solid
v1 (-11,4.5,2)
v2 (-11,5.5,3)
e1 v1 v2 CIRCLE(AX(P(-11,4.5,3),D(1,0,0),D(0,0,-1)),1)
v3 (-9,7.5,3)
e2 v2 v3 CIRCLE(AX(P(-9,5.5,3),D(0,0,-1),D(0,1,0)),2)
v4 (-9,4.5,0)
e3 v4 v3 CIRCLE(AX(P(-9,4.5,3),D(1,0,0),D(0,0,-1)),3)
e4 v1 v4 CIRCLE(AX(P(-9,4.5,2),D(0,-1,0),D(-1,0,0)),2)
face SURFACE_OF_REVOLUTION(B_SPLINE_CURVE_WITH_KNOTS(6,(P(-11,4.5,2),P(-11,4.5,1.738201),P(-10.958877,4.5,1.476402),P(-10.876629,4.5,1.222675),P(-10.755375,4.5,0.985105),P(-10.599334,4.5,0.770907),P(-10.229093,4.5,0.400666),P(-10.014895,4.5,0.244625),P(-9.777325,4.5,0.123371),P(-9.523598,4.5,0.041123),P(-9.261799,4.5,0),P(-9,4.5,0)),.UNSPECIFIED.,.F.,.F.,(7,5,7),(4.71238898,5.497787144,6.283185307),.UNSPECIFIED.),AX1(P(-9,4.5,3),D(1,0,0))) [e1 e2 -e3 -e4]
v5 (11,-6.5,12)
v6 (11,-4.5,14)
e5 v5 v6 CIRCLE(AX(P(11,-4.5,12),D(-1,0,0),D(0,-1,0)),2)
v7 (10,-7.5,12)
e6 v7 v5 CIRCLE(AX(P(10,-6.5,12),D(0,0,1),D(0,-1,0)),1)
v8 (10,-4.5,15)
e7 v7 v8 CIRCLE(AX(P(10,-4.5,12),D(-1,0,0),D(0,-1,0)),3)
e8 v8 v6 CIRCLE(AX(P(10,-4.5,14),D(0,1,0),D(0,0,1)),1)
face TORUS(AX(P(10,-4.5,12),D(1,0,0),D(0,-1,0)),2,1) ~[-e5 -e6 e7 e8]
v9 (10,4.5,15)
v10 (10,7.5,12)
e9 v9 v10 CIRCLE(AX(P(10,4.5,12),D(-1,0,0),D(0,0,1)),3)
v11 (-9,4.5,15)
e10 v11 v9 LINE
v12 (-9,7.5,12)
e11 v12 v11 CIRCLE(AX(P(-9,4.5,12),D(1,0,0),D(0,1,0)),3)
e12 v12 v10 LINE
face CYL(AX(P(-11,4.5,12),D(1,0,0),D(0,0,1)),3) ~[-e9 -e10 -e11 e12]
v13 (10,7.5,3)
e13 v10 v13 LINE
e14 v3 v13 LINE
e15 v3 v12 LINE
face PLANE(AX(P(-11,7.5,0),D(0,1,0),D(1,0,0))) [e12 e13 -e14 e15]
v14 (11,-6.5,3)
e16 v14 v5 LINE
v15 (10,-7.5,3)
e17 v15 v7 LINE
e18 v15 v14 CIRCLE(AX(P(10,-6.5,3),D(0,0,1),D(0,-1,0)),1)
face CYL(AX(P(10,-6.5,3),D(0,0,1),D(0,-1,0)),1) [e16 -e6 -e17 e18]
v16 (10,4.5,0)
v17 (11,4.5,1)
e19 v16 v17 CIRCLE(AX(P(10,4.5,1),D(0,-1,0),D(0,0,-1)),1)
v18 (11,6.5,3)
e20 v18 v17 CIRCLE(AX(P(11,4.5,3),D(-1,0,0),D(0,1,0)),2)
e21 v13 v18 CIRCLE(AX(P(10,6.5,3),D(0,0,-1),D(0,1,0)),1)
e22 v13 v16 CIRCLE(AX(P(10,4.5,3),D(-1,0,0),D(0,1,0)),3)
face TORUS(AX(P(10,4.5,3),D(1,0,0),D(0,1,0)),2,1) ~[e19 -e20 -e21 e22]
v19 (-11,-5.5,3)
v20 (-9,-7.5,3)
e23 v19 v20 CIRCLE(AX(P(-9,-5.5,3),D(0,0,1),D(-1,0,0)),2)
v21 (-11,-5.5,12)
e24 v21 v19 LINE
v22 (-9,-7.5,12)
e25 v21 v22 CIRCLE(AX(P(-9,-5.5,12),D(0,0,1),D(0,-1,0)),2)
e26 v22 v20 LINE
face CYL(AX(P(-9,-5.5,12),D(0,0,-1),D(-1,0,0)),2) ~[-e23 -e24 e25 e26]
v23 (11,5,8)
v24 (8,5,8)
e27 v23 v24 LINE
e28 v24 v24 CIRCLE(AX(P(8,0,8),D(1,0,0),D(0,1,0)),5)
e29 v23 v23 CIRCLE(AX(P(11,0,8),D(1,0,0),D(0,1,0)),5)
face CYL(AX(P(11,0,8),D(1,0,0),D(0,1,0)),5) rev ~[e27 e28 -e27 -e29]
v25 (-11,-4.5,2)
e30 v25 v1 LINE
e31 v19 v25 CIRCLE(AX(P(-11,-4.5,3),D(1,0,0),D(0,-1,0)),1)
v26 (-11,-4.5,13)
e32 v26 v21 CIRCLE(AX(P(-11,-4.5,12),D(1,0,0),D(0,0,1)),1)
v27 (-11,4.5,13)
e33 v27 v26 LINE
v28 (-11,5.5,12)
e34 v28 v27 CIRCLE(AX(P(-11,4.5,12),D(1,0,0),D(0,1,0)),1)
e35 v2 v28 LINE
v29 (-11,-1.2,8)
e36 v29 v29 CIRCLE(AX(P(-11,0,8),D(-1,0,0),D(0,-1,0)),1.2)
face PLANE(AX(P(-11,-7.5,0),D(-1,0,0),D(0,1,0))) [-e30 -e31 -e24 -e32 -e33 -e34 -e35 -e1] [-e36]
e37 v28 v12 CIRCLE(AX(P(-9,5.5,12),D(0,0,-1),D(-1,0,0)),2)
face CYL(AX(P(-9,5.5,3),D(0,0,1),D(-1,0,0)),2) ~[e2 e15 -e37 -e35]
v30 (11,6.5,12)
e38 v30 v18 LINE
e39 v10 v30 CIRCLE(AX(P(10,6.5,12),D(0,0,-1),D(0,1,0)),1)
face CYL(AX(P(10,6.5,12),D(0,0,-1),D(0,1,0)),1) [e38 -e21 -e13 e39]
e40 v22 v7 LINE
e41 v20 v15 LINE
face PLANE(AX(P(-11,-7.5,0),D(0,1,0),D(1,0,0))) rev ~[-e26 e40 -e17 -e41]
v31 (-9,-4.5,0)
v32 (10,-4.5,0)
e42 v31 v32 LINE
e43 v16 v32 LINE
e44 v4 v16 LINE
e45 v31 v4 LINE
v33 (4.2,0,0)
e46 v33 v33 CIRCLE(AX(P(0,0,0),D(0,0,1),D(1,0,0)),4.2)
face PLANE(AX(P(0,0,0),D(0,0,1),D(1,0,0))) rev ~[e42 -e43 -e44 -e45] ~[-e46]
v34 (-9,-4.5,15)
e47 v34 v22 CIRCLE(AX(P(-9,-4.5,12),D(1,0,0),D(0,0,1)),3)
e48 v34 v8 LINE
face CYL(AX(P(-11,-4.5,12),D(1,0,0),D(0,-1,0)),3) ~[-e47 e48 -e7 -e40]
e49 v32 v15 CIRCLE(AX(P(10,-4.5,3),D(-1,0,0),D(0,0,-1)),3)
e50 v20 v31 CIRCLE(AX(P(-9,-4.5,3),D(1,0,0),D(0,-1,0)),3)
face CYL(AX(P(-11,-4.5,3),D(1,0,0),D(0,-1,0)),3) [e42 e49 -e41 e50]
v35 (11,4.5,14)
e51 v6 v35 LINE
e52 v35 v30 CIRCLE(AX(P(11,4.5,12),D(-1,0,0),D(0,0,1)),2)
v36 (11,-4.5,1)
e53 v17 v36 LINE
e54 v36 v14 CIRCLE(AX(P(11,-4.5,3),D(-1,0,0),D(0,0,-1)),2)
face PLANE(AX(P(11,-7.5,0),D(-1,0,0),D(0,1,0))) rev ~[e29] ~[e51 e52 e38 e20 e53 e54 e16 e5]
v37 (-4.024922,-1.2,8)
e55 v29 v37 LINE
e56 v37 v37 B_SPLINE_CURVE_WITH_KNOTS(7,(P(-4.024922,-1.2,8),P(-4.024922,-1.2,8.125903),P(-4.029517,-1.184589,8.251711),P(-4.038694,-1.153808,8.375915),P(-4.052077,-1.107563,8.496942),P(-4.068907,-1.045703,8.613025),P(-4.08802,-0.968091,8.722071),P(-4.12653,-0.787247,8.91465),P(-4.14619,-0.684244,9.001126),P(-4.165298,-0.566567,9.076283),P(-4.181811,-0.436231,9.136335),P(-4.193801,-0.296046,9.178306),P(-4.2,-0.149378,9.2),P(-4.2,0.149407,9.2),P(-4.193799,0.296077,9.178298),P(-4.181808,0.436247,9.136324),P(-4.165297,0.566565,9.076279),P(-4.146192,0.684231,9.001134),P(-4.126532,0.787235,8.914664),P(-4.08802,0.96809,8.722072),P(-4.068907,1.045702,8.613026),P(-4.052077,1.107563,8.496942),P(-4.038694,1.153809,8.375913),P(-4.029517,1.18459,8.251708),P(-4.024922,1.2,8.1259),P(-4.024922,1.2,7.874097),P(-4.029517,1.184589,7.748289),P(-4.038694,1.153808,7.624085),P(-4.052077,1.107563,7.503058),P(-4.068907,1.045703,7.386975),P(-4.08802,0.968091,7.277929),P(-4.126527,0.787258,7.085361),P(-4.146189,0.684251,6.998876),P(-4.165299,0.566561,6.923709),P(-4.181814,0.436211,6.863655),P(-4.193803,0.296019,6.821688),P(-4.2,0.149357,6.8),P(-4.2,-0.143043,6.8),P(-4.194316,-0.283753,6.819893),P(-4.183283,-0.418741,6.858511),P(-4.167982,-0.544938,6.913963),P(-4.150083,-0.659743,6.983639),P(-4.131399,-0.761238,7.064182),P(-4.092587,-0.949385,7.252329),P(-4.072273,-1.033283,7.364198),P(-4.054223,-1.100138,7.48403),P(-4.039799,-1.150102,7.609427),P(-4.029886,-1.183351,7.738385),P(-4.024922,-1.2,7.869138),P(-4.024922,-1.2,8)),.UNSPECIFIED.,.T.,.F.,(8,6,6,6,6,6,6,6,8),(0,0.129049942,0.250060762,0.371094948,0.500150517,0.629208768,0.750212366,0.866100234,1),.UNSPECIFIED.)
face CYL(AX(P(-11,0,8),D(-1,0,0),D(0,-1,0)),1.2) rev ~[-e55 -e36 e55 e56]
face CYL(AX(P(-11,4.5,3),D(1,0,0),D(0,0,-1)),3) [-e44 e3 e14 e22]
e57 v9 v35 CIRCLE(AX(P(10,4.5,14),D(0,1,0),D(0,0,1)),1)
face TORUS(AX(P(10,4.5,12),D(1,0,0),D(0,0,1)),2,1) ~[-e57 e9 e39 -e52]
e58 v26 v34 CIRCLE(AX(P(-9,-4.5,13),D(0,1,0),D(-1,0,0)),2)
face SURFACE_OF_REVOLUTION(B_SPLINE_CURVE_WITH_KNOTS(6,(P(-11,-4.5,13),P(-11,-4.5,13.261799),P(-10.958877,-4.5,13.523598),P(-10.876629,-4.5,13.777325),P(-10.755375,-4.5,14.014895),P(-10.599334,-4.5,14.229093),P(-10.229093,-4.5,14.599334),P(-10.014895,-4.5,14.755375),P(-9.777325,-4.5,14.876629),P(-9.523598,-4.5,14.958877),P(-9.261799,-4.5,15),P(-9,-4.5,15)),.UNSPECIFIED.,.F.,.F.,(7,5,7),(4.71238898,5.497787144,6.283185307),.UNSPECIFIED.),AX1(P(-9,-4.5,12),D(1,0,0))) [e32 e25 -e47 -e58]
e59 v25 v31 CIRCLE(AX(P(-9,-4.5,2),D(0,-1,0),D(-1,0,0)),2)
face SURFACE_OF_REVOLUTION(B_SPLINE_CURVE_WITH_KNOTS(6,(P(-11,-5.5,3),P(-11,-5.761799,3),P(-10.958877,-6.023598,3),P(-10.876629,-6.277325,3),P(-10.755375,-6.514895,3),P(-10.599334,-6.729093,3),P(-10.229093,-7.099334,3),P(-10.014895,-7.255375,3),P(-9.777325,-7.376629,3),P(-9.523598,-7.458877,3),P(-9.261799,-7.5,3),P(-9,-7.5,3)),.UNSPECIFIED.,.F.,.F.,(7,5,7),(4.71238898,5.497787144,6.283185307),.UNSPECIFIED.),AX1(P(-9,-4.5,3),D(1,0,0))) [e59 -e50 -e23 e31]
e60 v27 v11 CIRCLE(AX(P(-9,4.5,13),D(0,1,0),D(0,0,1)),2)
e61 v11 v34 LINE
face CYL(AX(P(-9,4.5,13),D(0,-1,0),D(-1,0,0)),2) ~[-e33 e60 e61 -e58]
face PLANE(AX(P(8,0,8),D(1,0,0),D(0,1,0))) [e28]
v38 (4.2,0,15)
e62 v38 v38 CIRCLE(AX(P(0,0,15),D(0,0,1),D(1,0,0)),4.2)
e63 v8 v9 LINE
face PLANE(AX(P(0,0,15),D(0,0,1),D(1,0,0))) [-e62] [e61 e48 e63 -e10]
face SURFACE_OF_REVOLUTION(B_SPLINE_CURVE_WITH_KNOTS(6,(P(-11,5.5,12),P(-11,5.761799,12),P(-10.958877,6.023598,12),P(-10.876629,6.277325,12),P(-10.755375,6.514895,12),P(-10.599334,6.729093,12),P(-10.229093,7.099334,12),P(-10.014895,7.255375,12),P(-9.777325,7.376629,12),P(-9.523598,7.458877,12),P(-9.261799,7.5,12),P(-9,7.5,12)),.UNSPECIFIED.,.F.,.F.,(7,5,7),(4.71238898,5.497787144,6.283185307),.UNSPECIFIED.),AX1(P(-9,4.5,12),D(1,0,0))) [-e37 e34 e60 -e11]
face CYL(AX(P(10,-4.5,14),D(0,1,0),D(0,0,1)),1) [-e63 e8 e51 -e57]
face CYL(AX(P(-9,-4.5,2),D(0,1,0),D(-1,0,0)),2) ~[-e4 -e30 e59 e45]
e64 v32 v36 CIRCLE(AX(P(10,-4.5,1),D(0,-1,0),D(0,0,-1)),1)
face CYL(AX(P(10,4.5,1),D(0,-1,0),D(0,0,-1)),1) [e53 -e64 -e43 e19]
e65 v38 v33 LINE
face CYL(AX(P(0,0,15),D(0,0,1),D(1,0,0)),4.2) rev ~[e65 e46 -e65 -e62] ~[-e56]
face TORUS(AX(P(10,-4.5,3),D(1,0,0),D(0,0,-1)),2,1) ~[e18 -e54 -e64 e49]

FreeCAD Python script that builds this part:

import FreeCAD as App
import Part
import Sketcher

V = App.Vector
Q = App.Units.Quantity


def edges_at(feature, points):
    """Names of the edges that pass closest to the given points."""
    edges = feature.Shape.Edges
    near = lambda p: min(range(len(edges)), key=lambda i: edges[i].distToShape(Part.Vertex(*p))[0])
    return sorted({f"Edge{near(p) + 1}" for p in points})

doc = App.newDocument("Part")
body = doc.addObject("PartDesign::Body", "Body")

# Sketch on XY plane
sketch1 = body.newObject("Sketcher::SketchObject", "Sketch")
sketch1.AttachmentSupport = (doc.getObject("XY_Plane"), [""])
sketch1.MapMode = "FlatFace"
sketch1.addGeometry(Part.LineSegment(V(-11, 8, 0), V(-11, -8, 0)), False)
sketch1.addGeometry(Part.LineSegment(V(-11, -8, 0), V(11, -8, 0)), False)
sketch1.addGeometry(Part.LineSegment(V(11, -8, 0), V(11, 8, 0)), False)
sketch1.addGeometry(Part.LineSegment(V(11, 8, 0), V(-11, 8, 0)), False)
sketch1.addConstraint(Sketcher.Constraint("Coincident", 0, 2, 1, 1))
sketch1.addConstraint(Sketcher.Constraint("Coincident", 1, 2, 2, 1))
sketch1.addConstraint(Sketcher.Constraint("Coincident", 2, 2, 3, 1))
sketch1.addConstraint(Sketcher.Constraint("Coincident", 3, 2, 0, 1))
sketch1.addConstraint(Sketcher.Constraint("Vertical", 0))
sketch1.addConstraint(Sketcher.Constraint("Horizontal", 1))
sketch1.addConstraint(Sketcher.Constraint("Vertical", 2))
sketch1.addConstraint(Sketcher.Constraint("Horizontal", 3))
sketch1.addConstraint(Sketcher.Constraint("Symmetric", 0, 2, 2, 2, -1, 1))
sketch1.addConstraint(Sketcher.Constraint("DistanceX", 1, 1, 1, 2, Q("22 mm")))
sketch1.addConstraint(Sketcher.Constraint("DistanceY", 0, 2, 0, 1, Q("15 mm")))
pad1 = body.newObject("PartDesign::Pad", "Pad")
pad1.Profile = sketch1
pad1.Length = 15

# Sketch on XY plane
sketch2 = body.newObject("Sketcher::SketchObject", "Sketch001")
sketch2.AttachmentSupport = (doc.getObject("XY_Plane"), [""])
sketch2.MapMode = "FlatFace"
sketch2.AttachmentOffset = App.Placement(V(0, 0, 15), App.Rotation())
sketch2.addGeometry(Part.Circle(V(0, 0, 0), V(0, 0, 1), 4.2), False)
sketch2.addConstraint(Sketcher.Constraint("Coincident", 0, 3, -1, 1))
sketch2.addConstraint(Sketcher.Constraint("Diameter", 0, Q("8.4 mm")))
pocket1 = body.newObject("PartDesign::Pocket", "Pocket")
pocket1.Profile = sketch2
pocket1.Type = "ThroughAll"

# Sketch on YZ plane
sketch3 = body.newObject("Sketcher::SketchObject", "Sketch002")
sketch3.AttachmentSupport = (doc.getObject("YZ_Plane"), [""])
sketch3.MapMode = "FlatFace"
sketch3.AttachmentOffset = App.Placement(V(0, 0, 11), App.Rotation())
sketch3.addGeometry(Part.Circle(V(0, 8, 0), V(0, 0, 1), 5), False)
sketch3.addConstraint(Sketcher.Constraint("PointOnObject", 0, 3, -2))
sketch3.addConstraint(Sketcher.Constraint("Diameter", 0, Q("10 mm")))
sketch3.addConstraint(Sketcher.Constraint("DistanceY", -1, 1, 0, 3, Q("8 mm")))
pocket2 = body.newObject("PartDesign::Pocket", "Pocket001")
pocket2.Profile = sketch3
pocket2.Length = 3

# Sketch on YZ plane
sketch4 = body.newObject("Sketcher::SketchObject", "Sketch003")
sketch4.AttachmentSupport = (doc.getObject("YZ_Plane"), [""])
sketch4.MapMode = "FlatFace"
sketch4.AttachmentOffset = App.Placement(V(0, 0, -11), App.Rotation())
sketch4.addGeometry(Part.Circle(V(0, 8, 0), V(0, 0, 1), 1.2), False)
sketch4.addConstraint(Sketcher.Constraint("PointOnObject", 0, 3, -2))
sketch4.addConstraint(Sketcher.Constraint("Diameter", 0, Q("2.4 mm")))
sketch4.addConstraint(Sketcher.Constraint("DistanceY", -1, 1, 0, 3, Q("8 mm")))
pocket3 = body.newObject("PartDesign::Pocket", "Pocket002")
pocket3.Profile = sketch4
pocket3.Length = 10
pocket3.Reversed = True
doc.recompute()

fillet = body.newObject("PartDesign::Fillet", "Fillet")
fillet.Base = (pocket3, edges_at(pocket3, [
    (0, -7.5, 15),
    (0, -7.5, 0),
    (0, 7.5, 15),
    (0, 7.5, 0),
]))
fillet.Radius = 3
doc.recompute()

fillet2 = body.newObject("PartDesign::Fillet", "Fillet001")
fillet2.Base = (fillet, edges_at(fillet, [(11, 0, 15)]))
fillet2.Radius = 1
doc.recompute()

fillet3 = body.newObject("PartDesign::Fillet", "Fillet002")
fillet3.Base = (fillet2, edges_at(fillet2, [(-11, 0, 0)]))
fillet3.Radius = 2

doc.recompute()
